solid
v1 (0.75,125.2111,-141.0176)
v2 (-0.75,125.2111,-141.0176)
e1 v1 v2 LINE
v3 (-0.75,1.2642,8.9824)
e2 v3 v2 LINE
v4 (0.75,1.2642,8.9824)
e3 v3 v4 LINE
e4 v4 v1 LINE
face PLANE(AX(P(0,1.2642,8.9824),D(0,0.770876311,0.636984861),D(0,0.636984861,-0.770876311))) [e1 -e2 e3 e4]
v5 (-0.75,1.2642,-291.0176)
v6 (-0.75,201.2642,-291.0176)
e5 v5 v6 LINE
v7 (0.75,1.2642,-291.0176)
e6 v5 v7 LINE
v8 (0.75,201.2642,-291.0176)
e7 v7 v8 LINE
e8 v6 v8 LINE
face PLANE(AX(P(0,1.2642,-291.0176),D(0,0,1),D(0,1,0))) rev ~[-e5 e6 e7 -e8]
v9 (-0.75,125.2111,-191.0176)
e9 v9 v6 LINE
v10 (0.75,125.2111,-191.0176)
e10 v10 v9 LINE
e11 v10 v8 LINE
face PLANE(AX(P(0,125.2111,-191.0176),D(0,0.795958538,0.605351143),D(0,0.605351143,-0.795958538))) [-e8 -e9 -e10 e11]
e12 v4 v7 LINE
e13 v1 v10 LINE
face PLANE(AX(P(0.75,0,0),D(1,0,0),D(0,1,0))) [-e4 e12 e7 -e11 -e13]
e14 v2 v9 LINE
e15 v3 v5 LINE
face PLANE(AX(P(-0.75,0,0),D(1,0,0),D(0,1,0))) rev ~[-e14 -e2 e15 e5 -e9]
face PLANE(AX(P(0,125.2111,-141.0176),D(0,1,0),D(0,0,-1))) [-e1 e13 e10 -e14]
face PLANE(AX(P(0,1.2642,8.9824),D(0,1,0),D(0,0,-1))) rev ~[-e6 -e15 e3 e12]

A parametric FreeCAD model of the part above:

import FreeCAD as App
import Part
import Sketcher
from FreeCAD import Vector
Q = App.Units.Quantity

doc = App.newDocument("Part")
body = doc.addObject("PartDesign::Body", "Body")

# Sketch on YZ plane
sketch1 = body.newObject("Sketcher::SketchObject", "Sketch")
sketch1.AttachmentSupport = (doc.getObject("YZ_Plane"), [""])
sketch1.MapMode = "FlatFace"
sketch1.addGeometry(Part.LineSegment(Vector(125, -141, 0), Vector(1, 9, 0)), False)
sketch1.addGeometry(Part.LineSegment(Vector(1, 9, 0), Vector(1, -291, 0)), False)
sketch1.addGeometry(Part.LineSegment(Vector(1, -291, 0), Vector(201, -291, 0)), False)
sketch1.addGeometry(Part.LineSegment(Vector(201, -291, 0), Vector(125, -191, 0)), False)
sketch1.addGeometry(Part.LineSegment(Vector(125, -191, 0), Vector(125, -141, 0)), False)
sketch1.addConstraint(Sketcher.Constraint("Coincident", 0, 2, 1, 1))
sketch1.addConstraint(Sketcher.Constraint("Coincident", 1, 2, 2, 1))
sketch1.addConstraint(Sketcher.Constraint("Coincident", 2, 2, 3, 1))
sketch1.addConstraint(Sketcher.Constraint("Coincident", 3, 2, 4, 1))
sketch1.addConstraint(Sketcher.Constraint("Coincident", 4, 2, 0, 1))
sketch1.addConstraint(Sketcher.Constraint("Vertical", 1))
sketch1.addConstraint(Sketcher.Constraint("Horizontal", 2))
sketch1.addConstraint(Sketcher.Constraint("Vertical", 4))
sketch1.addConstraint(Sketcher.Constraint("DistanceX", 2, 1, 2, 2, Q("200 mm")))
sketch1.addConstraint(Sketcher.Constraint("DistanceY", 1, 2, 1, 1, Q("300 mm")))
sketch1.addConstraint(Sketcher.Constraint("DistanceY", 4, 1, 4, 2, Q("50 mm")))
sketch1.addConstraint(Sketcher.Constraint("DistanceY", 3, 2, 0, 2, Q("200 mm")))
sketch1.addConstraint(Sketcher.Constraint("DistanceX", -1, 1, 3, 2, Q("125.211 mm")))
sketch1.addConstraint(Sketcher.Constraint("DistanceX", 3, 2, 2, 2, Q("76.053 mm")))
sketch1.addConstraint(Sketcher.Constraint("DistanceY", -1, 1, 0, 2, Q("8.9824 mm")))
pad1 = body.newObject("PartDesign::Pad", "Pad")
pad1.Profile = sketch1
pad1.Length = 1.5
pad1.Midplane = True

doc.recompute()
